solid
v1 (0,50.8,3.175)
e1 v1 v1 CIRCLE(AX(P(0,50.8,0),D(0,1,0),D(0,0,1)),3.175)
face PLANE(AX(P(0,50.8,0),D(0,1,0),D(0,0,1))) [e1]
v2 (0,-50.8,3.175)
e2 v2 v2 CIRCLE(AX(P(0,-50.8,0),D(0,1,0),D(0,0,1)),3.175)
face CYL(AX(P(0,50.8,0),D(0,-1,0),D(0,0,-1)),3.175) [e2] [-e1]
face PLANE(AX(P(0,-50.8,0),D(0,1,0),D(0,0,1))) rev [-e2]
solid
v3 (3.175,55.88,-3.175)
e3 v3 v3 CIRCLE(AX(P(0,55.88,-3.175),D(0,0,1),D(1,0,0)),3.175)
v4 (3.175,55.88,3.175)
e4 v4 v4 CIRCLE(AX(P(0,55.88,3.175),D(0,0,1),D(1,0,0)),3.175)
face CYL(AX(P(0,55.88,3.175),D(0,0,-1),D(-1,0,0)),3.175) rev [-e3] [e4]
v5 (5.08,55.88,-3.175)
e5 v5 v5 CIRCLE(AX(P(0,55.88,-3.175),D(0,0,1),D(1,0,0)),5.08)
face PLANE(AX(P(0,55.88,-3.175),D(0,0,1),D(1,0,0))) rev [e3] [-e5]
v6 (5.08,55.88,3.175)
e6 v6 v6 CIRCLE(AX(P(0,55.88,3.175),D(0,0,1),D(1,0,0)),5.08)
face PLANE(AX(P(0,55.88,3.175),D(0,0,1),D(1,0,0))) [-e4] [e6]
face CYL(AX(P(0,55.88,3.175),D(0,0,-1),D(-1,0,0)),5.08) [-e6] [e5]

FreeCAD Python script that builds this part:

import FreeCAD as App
import Part
import Sketcher
Q = App.Units.Quantity

doc = App.newDocument("Part")
params = doc.addObject("Spreadsheet::Sheet", "Params")
for row, (alias, value) in enumerate([
    ("sketch1_diameter", "0.25 in"),
    ("pad1_length", "4 in"),
    ("sketch2_diameter", "0.4 in"),
    ("sketch2_diameter2", "0.25 in"),
    ("pad2_length", "0.25 in"),
], start=1):
    params.set(f"A{row}", alias)
    params.set(f"B{row}", "=" + value)
    params.setAlias(f"B{row}", alias)

body = doc.addObject("PartDesign::Body", "Body")

# Sketch on XZ plane
sketch1 = body.newObject("Sketcher::SketchObject", "Sketch")
sketch1.AttachmentSupport = (doc.getObject("XZ_Plane"), [""])
sketch1.MapMode = "FlatFace"
sketch1.addGeometry(Part.Circle(App.Vector(0, 0, 0), App.Vector(0, 0, 1), 3.2), False)
sketch1.addConstraint([
    Sketcher.Constraint("Coincident", 0, 3, -1, 1),
    Sketcher.Constraint("Diameter", 0, Q("0.25 in")),
])
sketch1.setExpression("Constraints[1]", "Params.sketch1_diameter")
pad1 = body.newObject("PartDesign::Pad", "Pad")
pad1.Profile = sketch1
pad1.setExpression("Length", "Params.pad1_length")
pad1.Midplane = True
body2 = doc.addObject("PartDesign::Body", "Body001")

# Sketch on XY plane
sketch2 = body2.newObject("Sketcher::SketchObject", "Sketch001")
sketch2.AttachmentSupport = (doc.getObject("XY_Plane001"), [""])
sketch2.MapMode = "FlatFace"
sketch2.addGeometry([
    Part.Circle(App.Vector(0, 55.9, 0), App.Vector(0, 0, 1), 5.1),
    Part.Circle(App.Vector(0, 55.9, 0), App.Vector(0, 0, 1), 3.2),
], False)
sketch2.addConstraint([
    Sketcher.Constraint("Coincident", 1, 3, 0, 3),
    Sketcher.Constraint("PointOnObject", 0, 3, -2),
    Sketcher.Constraint("Diameter", 0, Q("0.4 in")),
    Sketcher.Constraint("Diameter", 1, Q("0.25 in")),
    Sketcher.Constraint("DistanceY", -1, 1, 0, 3, Q("2.2 in")),
])
sketch2.setExpression("Constraints[2]", "Params.sketch2_diameter")
sketch2.setExpression("Constraints[3]", "Params.sketch2_diameter2")
pad2 = body2.newObject("PartDesign::Pad", "Pad001")
pad2.Profile = sketch2
pad2.setExpression("Length", "Params.pad2_length")
pad2.Midplane = True

doc.recompute()
